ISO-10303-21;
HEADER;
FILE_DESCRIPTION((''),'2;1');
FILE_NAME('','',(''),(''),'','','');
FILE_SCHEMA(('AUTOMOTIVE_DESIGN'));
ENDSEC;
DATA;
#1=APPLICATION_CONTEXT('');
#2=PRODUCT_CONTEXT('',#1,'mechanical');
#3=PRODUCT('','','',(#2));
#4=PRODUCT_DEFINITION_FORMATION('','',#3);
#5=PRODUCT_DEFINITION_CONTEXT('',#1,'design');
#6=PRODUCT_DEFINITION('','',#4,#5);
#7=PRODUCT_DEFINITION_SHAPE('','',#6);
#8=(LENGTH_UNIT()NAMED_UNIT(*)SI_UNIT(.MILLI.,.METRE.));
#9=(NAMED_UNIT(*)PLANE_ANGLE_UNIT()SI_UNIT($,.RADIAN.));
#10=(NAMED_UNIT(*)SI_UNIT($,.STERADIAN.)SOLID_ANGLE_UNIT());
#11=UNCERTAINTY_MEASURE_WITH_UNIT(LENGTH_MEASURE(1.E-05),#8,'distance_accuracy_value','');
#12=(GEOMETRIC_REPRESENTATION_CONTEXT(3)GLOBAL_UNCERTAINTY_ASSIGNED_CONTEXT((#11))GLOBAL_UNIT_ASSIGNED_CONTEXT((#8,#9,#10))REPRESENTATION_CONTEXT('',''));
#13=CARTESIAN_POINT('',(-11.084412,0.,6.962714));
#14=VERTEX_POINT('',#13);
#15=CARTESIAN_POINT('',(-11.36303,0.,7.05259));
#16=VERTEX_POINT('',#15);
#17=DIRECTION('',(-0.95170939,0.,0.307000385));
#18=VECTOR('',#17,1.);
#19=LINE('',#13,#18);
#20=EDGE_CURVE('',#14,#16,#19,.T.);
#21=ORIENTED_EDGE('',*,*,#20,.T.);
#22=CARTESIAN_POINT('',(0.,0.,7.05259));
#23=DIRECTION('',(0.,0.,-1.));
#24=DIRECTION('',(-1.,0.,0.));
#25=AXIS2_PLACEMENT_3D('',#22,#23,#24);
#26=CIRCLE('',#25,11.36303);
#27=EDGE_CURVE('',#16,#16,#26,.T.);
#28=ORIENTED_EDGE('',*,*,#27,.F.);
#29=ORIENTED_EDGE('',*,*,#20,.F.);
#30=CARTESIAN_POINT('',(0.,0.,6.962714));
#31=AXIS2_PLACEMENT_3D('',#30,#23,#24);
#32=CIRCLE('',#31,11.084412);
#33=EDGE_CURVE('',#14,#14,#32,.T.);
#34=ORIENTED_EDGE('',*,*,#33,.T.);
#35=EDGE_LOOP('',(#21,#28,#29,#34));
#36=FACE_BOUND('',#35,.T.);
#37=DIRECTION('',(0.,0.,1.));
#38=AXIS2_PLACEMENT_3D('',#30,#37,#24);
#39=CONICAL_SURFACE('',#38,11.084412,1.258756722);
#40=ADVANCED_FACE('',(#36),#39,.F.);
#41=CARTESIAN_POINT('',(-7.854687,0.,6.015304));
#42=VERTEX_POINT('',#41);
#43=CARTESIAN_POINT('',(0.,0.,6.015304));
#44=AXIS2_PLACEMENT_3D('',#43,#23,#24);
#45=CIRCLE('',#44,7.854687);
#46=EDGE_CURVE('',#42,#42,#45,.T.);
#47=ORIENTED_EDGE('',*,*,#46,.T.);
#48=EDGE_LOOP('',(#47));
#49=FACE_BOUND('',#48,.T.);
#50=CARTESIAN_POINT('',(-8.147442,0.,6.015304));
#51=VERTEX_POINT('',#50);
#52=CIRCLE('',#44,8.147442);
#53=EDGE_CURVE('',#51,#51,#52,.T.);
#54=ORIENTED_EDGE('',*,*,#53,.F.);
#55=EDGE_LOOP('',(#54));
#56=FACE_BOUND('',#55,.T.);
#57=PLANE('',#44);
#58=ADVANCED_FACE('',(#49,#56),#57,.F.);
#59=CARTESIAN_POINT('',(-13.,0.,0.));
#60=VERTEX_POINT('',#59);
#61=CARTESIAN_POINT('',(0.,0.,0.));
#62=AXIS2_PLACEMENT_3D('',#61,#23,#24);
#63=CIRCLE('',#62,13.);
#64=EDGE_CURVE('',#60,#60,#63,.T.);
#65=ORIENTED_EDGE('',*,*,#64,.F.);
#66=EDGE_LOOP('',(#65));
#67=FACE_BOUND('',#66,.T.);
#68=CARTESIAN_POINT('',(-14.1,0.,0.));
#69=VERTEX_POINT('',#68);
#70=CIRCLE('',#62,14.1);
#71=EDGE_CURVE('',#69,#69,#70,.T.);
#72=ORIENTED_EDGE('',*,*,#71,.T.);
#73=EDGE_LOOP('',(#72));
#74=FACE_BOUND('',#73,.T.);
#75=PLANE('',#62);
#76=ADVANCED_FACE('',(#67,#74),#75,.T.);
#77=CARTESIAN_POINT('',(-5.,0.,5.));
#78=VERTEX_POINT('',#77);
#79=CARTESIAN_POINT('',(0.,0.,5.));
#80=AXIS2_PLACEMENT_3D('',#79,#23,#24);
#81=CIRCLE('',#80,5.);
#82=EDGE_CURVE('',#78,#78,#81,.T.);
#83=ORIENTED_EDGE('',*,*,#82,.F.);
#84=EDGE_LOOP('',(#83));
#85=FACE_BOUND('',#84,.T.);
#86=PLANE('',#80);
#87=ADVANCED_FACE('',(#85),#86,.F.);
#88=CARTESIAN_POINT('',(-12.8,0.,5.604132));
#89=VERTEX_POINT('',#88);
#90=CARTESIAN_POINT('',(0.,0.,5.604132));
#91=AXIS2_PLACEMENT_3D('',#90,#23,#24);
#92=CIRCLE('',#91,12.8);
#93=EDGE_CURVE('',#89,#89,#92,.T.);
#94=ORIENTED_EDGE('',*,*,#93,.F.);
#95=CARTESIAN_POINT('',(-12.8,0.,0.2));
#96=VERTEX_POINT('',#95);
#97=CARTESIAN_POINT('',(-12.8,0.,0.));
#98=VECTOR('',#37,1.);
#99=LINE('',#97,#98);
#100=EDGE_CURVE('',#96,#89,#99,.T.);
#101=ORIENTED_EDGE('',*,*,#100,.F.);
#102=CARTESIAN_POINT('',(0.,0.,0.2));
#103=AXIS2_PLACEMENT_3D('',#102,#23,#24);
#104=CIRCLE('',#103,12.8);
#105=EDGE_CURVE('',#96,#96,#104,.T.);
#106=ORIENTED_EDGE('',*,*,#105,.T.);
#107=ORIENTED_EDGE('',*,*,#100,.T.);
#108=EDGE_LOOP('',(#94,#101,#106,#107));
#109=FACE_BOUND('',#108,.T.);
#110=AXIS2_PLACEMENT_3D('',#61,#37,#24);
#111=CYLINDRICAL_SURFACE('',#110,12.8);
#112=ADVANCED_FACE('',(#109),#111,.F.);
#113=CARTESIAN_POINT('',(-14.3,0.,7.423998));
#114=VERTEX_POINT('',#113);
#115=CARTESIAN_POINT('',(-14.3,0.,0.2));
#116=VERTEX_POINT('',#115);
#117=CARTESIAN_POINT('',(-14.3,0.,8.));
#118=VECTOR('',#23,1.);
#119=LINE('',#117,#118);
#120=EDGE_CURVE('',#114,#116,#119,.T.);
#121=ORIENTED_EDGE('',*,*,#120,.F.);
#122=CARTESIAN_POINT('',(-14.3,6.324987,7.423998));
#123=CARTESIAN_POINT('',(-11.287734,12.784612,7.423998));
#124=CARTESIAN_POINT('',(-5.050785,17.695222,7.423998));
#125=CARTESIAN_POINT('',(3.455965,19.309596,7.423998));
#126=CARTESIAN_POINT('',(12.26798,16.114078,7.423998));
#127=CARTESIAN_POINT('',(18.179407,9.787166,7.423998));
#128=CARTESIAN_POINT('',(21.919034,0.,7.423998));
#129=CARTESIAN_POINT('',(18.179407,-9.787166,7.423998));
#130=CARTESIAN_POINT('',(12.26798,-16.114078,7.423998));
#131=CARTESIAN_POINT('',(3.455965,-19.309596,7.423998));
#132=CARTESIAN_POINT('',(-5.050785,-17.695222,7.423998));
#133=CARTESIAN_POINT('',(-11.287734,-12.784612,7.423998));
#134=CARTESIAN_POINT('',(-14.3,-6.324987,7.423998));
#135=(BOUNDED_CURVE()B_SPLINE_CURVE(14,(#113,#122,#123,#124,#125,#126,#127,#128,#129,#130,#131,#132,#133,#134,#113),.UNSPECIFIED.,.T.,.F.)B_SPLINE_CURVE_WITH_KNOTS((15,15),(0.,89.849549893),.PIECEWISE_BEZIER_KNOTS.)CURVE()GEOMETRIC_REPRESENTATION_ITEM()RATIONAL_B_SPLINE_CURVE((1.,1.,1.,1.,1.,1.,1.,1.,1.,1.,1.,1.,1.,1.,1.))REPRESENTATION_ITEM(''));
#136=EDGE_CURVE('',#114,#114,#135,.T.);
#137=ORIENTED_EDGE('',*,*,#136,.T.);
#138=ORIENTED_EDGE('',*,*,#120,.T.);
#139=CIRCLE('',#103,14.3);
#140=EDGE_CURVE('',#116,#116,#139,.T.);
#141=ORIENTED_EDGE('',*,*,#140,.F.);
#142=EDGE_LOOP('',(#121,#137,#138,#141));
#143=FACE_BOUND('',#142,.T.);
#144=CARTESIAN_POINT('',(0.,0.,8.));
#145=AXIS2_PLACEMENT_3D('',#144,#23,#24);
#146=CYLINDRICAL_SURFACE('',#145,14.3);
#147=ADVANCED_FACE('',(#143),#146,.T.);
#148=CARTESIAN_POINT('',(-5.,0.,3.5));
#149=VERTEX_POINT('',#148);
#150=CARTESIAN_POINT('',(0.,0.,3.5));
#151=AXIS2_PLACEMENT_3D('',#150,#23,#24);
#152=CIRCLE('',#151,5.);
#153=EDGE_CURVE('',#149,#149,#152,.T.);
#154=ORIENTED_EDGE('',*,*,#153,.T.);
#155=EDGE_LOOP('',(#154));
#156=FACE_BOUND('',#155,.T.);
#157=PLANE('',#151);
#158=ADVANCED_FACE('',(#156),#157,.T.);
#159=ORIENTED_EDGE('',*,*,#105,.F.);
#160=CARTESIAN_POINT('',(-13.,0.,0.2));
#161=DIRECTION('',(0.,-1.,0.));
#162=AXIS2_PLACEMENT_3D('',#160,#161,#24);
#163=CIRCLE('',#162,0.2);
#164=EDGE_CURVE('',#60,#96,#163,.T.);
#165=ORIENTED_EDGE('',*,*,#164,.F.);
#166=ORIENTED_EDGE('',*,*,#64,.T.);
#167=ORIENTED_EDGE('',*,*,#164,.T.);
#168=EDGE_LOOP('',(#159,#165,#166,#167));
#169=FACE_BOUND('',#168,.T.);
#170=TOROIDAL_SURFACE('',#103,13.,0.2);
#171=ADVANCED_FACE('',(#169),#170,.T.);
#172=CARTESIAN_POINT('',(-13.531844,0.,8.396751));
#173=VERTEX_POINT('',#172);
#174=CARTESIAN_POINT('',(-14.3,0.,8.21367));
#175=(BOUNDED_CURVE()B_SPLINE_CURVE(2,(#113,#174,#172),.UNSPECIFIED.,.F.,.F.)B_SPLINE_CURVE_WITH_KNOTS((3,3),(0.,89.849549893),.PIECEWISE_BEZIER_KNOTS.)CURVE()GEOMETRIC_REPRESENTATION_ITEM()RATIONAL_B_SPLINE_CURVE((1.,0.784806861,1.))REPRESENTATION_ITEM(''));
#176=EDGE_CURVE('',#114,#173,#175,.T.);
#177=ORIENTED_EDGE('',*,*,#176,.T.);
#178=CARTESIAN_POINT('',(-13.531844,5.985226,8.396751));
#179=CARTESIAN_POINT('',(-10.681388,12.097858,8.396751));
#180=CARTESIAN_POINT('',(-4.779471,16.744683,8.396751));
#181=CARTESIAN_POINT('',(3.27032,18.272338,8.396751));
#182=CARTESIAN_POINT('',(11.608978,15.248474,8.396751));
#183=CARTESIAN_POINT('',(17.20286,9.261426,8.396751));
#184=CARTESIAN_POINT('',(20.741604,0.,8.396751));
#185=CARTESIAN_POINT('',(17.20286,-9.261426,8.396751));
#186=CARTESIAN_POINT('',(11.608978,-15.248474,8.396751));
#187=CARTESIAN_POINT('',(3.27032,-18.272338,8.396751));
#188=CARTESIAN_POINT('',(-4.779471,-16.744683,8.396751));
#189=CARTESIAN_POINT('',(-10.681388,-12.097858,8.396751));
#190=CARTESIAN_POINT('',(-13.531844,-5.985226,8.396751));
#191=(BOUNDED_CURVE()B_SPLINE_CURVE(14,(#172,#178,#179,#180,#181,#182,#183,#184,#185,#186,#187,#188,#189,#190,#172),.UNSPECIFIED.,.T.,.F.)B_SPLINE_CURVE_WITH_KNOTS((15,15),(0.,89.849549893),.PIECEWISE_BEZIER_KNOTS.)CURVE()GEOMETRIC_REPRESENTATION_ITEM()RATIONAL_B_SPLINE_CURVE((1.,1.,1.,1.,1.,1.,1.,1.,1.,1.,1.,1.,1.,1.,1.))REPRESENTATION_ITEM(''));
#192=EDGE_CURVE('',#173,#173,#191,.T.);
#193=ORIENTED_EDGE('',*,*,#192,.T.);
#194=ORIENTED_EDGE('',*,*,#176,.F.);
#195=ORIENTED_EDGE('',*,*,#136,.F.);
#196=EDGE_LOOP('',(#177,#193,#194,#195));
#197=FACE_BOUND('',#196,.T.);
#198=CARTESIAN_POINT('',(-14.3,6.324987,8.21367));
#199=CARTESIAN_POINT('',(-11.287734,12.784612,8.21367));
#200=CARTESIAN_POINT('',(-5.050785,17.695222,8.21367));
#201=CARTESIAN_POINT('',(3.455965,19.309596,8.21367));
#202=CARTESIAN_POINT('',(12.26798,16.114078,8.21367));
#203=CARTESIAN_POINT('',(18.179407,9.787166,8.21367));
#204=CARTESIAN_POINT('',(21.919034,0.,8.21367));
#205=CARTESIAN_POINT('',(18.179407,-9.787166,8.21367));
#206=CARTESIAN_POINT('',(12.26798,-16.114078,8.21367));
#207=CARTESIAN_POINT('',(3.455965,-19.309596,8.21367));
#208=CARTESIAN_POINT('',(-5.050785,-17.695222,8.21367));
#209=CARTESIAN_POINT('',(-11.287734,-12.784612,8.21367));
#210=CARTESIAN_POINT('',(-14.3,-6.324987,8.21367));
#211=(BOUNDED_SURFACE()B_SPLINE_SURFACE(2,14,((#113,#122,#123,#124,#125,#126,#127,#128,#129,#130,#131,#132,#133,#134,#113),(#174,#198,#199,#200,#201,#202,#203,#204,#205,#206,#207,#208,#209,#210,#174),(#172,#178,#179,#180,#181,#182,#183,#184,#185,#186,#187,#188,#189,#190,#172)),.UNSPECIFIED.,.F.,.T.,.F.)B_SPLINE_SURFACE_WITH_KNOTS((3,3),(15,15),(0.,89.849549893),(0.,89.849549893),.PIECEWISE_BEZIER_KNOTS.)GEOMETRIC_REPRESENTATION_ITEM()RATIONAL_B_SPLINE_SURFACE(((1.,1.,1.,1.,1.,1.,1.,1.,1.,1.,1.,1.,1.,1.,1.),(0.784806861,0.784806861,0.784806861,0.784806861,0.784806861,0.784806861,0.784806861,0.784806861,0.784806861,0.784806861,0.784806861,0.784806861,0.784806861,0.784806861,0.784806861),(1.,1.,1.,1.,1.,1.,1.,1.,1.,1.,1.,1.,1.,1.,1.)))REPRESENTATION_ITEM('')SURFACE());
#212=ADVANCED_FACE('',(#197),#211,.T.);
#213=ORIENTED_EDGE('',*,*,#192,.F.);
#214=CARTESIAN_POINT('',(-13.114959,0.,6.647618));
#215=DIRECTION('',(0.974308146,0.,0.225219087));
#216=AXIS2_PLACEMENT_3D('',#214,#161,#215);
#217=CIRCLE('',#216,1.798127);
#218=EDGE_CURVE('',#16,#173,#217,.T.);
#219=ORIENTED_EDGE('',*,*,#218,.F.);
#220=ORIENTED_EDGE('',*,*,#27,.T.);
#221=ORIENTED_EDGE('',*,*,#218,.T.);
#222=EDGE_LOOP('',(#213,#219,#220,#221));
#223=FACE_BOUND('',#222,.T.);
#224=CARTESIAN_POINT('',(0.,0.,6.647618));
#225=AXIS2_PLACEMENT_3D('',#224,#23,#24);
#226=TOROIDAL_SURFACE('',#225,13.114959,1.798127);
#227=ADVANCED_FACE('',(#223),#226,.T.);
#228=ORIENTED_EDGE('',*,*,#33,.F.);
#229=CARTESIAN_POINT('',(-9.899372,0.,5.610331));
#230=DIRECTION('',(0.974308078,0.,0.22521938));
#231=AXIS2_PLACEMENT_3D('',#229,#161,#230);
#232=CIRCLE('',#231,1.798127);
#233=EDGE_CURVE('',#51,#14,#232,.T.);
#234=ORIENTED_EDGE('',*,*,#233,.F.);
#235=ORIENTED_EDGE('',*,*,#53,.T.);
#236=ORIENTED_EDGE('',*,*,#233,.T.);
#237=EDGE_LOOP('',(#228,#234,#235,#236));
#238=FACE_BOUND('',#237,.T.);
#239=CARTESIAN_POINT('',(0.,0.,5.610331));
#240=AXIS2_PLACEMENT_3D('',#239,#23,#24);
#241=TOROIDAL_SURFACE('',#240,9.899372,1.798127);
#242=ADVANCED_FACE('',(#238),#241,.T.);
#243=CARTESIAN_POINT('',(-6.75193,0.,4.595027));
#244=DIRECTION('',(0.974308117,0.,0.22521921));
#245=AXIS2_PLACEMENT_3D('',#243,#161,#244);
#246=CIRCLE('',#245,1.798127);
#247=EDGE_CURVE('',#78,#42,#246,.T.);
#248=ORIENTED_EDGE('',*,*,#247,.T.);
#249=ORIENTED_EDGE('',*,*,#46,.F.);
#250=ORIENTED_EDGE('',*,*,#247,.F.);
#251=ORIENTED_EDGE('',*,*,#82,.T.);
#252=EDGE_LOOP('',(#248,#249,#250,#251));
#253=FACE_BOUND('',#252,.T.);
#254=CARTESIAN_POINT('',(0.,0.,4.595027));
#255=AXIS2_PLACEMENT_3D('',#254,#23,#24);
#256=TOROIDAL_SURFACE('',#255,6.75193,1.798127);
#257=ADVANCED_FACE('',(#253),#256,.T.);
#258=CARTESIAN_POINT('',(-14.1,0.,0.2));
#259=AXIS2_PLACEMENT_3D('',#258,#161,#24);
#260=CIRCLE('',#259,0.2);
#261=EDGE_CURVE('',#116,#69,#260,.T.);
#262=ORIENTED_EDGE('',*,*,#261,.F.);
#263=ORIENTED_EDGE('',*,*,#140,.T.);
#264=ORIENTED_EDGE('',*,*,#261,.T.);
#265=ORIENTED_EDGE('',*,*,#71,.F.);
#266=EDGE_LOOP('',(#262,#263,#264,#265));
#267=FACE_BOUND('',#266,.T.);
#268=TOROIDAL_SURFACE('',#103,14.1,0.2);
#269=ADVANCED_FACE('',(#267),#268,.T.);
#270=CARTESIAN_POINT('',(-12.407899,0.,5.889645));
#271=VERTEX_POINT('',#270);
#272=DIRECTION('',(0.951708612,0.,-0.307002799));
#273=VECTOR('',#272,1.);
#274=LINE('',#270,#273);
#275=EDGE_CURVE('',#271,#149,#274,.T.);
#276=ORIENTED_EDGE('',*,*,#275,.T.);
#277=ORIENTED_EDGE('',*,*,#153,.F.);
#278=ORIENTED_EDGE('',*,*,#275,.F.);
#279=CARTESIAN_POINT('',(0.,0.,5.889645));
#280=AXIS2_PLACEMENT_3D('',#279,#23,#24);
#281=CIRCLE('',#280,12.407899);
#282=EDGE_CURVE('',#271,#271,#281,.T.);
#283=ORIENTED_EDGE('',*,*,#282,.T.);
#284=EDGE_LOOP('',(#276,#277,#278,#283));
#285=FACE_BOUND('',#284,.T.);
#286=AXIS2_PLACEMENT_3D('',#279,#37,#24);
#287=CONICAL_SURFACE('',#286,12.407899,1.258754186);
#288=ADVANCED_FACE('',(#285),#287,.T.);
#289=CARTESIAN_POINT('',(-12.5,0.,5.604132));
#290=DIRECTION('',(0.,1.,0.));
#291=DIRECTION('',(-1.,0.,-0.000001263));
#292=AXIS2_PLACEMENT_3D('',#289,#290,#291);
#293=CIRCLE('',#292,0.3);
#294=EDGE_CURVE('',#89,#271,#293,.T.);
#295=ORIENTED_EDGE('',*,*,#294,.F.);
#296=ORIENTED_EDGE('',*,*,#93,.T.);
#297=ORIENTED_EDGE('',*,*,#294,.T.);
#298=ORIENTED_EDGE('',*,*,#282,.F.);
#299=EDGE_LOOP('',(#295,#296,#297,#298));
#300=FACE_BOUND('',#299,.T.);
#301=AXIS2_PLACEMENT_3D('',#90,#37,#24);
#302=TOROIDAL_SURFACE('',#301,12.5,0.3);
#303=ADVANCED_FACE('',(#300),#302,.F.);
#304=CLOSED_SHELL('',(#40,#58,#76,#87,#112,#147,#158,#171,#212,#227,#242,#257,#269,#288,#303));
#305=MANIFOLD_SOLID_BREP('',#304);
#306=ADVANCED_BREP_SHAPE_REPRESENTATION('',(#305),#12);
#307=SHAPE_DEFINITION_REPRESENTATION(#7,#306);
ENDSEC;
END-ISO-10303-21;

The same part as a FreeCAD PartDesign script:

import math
import FreeCAD as App
import Part
import Sketcher
from FreeCAD import Vector


def edges_at(feature, points):
    """Names of the edges that pass closest to the given points."""
    edges = feature.Shape.Edges
    near = lambda p: min(range(len(edges)), key=lambda i: edges[i].distToShape(Part.Vertex(*p))[0])
    return sorted({f"Edge{near(p) + 1}" for p in points})

doc = App.newDocument("Part")
body = doc.addObject("PartDesign::Body", "Body")

sketch1 = body.newObject("Sketcher::SketchObject", "Sketch")
sketch1.AttachmentSupport = (doc.getObject("XZ_Plane"), [""])
sketch1.MapMode = "FlatFace"
sketch1.addGeometry([
    Part.LineSegment(Vector(-14.3, 8, 0), Vector(-14.3, 0, 0)),
    Part.LineSegment(Vector(-14.3, 0, 0), Vector(-12.8, 0, 0)),
    Part.LineSegment(Vector(-12.8, 0, 0), Vector(-12.8, 5.604132, 0)),
    Part.ArcOfCircle(Part.Circle(Vector(-12.5, 5.604132, 0), Vector(0, 0, 1), 0.3), math.radians(72.121287), math.radians(180.000072)),
    Part.LineSegment(Vector(-12.407899, 5.889645, 0), Vector(-5, 3.5, 0)),
    Part.LineSegment(Vector(-5, 3.5, 0), Vector(0, 3.5, 0)),
    Part.LineSegment(Vector(0, 3.5, 0), Vector(0, 5, 0)),
    Part.LineSegment(Vector(0, 5, 0), Vector(-5, 5, 0)),
    Part.ArcOfCircle(Part.Circle(Vector(-6.75193, 4.595027, 0), Vector(0, 0, 1), 1.798127), math.radians(13.015769), math.radians(127.82714)),
    Part.LineSegment(Vector(-7.854687, 6.015304, 0), Vector(-8.147442, 6.015304, 0)),
    Part.ArcOfCircle(Part.Circle(Vector(-9.899372, 5.610331, 0), Vector(0, 0, 1), 1.798127), math.radians(13.015779), math.radians(131.226817)),
    Part.LineSegment(Vector(-11.084412, 6.962714, 0), Vector(-11.36303, 7.05259, 0)),
    Part.ArcOfCircle(Part.Circle(Vector(-13.114959, 6.647618, 0), Vector(0, 0, 1), 1.798127), math.radians(13.015762), math.radians(131.226834)),
], False)
sketch1.addConstraint([
    Sketcher.Constraint("Coincident", 0, 2, 1, 1),
    Sketcher.Constraint("Coincident", 1, 2, 2, 1),
    Sketcher.Constraint("Tangent", 2, 2, 3, 2),
    Sketcher.Constraint("Tangent", 3, 1, 4, 1),
    Sketcher.Constraint("Coincident", 4, 2, 5, 1),
    Sketcher.Constraint("Coincident", 5, 2, 6, 1),
    Sketcher.Constraint("Coincident", 6, 2, 7, 1),
    Sketcher.Constraint("Coincident", 7, 2, 8, 1),
    Sketcher.Constraint("Coincident", 8, 2, 9, 1),
    Sketcher.Constraint("Coincident", 9, 2, 10, 1),
    Sketcher.Constraint("Coincident", 10, 2, 11, 1),
    Sketcher.Constraint("Coincident", 11, 2, 12, 1),
    Sketcher.Constraint("Coincident", 12, 2, 0, 1),
    Sketcher.Constraint("Vertical", 0),
    Sketcher.Constraint("Horizontal", 1),
    Sketcher.Constraint("Vertical", 2),
    Sketcher.Constraint("Horizontal", 5),
    Sketcher.Constraint("Vertical", 6),
    Sketcher.Constraint("Horizontal", 7),
    Sketcher.Constraint("Horizontal", 9),
    Sketcher.Constraint("Equal", 8, 10),
    Sketcher.Constraint("Equal", 10, 12),
    Sketcher.Constraint("PointOnObject", 0, 2, -1),
    Sketcher.Constraint("PointOnObject", 5, 2, -2),
    Sketcher.Constraint("Vertical", 4, 2, 7, 2),
    Sketcher.Constraint("Equal", 1, 6),
    Sketcher.Constraint("Radius", 3, 0.3),
    Sketcher.Constraint("DistanceX", 5, 1, 5, 2, 5.0),
    Sketcher.Constraint("DistanceY", 0, 2, 0, 1, 8.0),
    Sketcher.Constraint("DistanceX", 1, 1, 1, 2, 1.5),
    Sketcher.Constraint("DistanceY", -1, 1, 6, 2, 5.0),
    Sketcher.Constraint("DistanceX", 3, 3, -1, 1, 12.5),
    Sketcher.Constraint("Radius", 8, 1.798127),
    Sketcher.Constraint("DistanceX", 3, 1, -1, 1, 12.407899),
    Sketcher.Constraint("DistanceY", 3, 3, 10, 3, 0.006199),
    Sketcher.Constraint("DistanceX", 9, 2, 9, 1, 0.292755),
    Sketcher.Constraint("DistanceX", 8, 3, -1, 1, 6.75193),
    Sketcher.Constraint("DistanceX", 10, 3, -1, 1, 9.899372),
    Sketcher.Constraint("DistanceX", 12, 3, -1, 1, 13.114959),
    Sketcher.Constraint("DistanceX", 10, 2, -1, 1, 11.084412),
    Sketcher.Constraint("DistanceX", 11, 2, -1, 1, 11.36303),
])
revolution = body.newObject("PartDesign::Revolution", "Revolution")
revolution.Profile = sketch1
revolution.ReferenceAxis = (sketch1, ["V_Axis"])
revolution.Angle = 360
doc.recompute()

fillet = body.newObject("PartDesign::Fillet", "Fillet")
fillet.Base = (revolution, edges_at(revolution, [(14.3, 0, 8)]))
fillet.Radius = 1
doc.recompute()

fillet2 = body.newObject("PartDesign::Fillet", "Fillet001")
fillet2.Base = (fillet, edges_at(fillet, [(14.3, 0, 0)]))
fillet2.Radius = 0.2
doc.recompute()

fillet3 = body.newObject("PartDesign::Fillet", "Fillet002")
fillet3.Base = (fillet2, edges_at(fillet2, [(12.8, 0, 0)]))
fillet3.Radius = 0.2

doc.recompute()
